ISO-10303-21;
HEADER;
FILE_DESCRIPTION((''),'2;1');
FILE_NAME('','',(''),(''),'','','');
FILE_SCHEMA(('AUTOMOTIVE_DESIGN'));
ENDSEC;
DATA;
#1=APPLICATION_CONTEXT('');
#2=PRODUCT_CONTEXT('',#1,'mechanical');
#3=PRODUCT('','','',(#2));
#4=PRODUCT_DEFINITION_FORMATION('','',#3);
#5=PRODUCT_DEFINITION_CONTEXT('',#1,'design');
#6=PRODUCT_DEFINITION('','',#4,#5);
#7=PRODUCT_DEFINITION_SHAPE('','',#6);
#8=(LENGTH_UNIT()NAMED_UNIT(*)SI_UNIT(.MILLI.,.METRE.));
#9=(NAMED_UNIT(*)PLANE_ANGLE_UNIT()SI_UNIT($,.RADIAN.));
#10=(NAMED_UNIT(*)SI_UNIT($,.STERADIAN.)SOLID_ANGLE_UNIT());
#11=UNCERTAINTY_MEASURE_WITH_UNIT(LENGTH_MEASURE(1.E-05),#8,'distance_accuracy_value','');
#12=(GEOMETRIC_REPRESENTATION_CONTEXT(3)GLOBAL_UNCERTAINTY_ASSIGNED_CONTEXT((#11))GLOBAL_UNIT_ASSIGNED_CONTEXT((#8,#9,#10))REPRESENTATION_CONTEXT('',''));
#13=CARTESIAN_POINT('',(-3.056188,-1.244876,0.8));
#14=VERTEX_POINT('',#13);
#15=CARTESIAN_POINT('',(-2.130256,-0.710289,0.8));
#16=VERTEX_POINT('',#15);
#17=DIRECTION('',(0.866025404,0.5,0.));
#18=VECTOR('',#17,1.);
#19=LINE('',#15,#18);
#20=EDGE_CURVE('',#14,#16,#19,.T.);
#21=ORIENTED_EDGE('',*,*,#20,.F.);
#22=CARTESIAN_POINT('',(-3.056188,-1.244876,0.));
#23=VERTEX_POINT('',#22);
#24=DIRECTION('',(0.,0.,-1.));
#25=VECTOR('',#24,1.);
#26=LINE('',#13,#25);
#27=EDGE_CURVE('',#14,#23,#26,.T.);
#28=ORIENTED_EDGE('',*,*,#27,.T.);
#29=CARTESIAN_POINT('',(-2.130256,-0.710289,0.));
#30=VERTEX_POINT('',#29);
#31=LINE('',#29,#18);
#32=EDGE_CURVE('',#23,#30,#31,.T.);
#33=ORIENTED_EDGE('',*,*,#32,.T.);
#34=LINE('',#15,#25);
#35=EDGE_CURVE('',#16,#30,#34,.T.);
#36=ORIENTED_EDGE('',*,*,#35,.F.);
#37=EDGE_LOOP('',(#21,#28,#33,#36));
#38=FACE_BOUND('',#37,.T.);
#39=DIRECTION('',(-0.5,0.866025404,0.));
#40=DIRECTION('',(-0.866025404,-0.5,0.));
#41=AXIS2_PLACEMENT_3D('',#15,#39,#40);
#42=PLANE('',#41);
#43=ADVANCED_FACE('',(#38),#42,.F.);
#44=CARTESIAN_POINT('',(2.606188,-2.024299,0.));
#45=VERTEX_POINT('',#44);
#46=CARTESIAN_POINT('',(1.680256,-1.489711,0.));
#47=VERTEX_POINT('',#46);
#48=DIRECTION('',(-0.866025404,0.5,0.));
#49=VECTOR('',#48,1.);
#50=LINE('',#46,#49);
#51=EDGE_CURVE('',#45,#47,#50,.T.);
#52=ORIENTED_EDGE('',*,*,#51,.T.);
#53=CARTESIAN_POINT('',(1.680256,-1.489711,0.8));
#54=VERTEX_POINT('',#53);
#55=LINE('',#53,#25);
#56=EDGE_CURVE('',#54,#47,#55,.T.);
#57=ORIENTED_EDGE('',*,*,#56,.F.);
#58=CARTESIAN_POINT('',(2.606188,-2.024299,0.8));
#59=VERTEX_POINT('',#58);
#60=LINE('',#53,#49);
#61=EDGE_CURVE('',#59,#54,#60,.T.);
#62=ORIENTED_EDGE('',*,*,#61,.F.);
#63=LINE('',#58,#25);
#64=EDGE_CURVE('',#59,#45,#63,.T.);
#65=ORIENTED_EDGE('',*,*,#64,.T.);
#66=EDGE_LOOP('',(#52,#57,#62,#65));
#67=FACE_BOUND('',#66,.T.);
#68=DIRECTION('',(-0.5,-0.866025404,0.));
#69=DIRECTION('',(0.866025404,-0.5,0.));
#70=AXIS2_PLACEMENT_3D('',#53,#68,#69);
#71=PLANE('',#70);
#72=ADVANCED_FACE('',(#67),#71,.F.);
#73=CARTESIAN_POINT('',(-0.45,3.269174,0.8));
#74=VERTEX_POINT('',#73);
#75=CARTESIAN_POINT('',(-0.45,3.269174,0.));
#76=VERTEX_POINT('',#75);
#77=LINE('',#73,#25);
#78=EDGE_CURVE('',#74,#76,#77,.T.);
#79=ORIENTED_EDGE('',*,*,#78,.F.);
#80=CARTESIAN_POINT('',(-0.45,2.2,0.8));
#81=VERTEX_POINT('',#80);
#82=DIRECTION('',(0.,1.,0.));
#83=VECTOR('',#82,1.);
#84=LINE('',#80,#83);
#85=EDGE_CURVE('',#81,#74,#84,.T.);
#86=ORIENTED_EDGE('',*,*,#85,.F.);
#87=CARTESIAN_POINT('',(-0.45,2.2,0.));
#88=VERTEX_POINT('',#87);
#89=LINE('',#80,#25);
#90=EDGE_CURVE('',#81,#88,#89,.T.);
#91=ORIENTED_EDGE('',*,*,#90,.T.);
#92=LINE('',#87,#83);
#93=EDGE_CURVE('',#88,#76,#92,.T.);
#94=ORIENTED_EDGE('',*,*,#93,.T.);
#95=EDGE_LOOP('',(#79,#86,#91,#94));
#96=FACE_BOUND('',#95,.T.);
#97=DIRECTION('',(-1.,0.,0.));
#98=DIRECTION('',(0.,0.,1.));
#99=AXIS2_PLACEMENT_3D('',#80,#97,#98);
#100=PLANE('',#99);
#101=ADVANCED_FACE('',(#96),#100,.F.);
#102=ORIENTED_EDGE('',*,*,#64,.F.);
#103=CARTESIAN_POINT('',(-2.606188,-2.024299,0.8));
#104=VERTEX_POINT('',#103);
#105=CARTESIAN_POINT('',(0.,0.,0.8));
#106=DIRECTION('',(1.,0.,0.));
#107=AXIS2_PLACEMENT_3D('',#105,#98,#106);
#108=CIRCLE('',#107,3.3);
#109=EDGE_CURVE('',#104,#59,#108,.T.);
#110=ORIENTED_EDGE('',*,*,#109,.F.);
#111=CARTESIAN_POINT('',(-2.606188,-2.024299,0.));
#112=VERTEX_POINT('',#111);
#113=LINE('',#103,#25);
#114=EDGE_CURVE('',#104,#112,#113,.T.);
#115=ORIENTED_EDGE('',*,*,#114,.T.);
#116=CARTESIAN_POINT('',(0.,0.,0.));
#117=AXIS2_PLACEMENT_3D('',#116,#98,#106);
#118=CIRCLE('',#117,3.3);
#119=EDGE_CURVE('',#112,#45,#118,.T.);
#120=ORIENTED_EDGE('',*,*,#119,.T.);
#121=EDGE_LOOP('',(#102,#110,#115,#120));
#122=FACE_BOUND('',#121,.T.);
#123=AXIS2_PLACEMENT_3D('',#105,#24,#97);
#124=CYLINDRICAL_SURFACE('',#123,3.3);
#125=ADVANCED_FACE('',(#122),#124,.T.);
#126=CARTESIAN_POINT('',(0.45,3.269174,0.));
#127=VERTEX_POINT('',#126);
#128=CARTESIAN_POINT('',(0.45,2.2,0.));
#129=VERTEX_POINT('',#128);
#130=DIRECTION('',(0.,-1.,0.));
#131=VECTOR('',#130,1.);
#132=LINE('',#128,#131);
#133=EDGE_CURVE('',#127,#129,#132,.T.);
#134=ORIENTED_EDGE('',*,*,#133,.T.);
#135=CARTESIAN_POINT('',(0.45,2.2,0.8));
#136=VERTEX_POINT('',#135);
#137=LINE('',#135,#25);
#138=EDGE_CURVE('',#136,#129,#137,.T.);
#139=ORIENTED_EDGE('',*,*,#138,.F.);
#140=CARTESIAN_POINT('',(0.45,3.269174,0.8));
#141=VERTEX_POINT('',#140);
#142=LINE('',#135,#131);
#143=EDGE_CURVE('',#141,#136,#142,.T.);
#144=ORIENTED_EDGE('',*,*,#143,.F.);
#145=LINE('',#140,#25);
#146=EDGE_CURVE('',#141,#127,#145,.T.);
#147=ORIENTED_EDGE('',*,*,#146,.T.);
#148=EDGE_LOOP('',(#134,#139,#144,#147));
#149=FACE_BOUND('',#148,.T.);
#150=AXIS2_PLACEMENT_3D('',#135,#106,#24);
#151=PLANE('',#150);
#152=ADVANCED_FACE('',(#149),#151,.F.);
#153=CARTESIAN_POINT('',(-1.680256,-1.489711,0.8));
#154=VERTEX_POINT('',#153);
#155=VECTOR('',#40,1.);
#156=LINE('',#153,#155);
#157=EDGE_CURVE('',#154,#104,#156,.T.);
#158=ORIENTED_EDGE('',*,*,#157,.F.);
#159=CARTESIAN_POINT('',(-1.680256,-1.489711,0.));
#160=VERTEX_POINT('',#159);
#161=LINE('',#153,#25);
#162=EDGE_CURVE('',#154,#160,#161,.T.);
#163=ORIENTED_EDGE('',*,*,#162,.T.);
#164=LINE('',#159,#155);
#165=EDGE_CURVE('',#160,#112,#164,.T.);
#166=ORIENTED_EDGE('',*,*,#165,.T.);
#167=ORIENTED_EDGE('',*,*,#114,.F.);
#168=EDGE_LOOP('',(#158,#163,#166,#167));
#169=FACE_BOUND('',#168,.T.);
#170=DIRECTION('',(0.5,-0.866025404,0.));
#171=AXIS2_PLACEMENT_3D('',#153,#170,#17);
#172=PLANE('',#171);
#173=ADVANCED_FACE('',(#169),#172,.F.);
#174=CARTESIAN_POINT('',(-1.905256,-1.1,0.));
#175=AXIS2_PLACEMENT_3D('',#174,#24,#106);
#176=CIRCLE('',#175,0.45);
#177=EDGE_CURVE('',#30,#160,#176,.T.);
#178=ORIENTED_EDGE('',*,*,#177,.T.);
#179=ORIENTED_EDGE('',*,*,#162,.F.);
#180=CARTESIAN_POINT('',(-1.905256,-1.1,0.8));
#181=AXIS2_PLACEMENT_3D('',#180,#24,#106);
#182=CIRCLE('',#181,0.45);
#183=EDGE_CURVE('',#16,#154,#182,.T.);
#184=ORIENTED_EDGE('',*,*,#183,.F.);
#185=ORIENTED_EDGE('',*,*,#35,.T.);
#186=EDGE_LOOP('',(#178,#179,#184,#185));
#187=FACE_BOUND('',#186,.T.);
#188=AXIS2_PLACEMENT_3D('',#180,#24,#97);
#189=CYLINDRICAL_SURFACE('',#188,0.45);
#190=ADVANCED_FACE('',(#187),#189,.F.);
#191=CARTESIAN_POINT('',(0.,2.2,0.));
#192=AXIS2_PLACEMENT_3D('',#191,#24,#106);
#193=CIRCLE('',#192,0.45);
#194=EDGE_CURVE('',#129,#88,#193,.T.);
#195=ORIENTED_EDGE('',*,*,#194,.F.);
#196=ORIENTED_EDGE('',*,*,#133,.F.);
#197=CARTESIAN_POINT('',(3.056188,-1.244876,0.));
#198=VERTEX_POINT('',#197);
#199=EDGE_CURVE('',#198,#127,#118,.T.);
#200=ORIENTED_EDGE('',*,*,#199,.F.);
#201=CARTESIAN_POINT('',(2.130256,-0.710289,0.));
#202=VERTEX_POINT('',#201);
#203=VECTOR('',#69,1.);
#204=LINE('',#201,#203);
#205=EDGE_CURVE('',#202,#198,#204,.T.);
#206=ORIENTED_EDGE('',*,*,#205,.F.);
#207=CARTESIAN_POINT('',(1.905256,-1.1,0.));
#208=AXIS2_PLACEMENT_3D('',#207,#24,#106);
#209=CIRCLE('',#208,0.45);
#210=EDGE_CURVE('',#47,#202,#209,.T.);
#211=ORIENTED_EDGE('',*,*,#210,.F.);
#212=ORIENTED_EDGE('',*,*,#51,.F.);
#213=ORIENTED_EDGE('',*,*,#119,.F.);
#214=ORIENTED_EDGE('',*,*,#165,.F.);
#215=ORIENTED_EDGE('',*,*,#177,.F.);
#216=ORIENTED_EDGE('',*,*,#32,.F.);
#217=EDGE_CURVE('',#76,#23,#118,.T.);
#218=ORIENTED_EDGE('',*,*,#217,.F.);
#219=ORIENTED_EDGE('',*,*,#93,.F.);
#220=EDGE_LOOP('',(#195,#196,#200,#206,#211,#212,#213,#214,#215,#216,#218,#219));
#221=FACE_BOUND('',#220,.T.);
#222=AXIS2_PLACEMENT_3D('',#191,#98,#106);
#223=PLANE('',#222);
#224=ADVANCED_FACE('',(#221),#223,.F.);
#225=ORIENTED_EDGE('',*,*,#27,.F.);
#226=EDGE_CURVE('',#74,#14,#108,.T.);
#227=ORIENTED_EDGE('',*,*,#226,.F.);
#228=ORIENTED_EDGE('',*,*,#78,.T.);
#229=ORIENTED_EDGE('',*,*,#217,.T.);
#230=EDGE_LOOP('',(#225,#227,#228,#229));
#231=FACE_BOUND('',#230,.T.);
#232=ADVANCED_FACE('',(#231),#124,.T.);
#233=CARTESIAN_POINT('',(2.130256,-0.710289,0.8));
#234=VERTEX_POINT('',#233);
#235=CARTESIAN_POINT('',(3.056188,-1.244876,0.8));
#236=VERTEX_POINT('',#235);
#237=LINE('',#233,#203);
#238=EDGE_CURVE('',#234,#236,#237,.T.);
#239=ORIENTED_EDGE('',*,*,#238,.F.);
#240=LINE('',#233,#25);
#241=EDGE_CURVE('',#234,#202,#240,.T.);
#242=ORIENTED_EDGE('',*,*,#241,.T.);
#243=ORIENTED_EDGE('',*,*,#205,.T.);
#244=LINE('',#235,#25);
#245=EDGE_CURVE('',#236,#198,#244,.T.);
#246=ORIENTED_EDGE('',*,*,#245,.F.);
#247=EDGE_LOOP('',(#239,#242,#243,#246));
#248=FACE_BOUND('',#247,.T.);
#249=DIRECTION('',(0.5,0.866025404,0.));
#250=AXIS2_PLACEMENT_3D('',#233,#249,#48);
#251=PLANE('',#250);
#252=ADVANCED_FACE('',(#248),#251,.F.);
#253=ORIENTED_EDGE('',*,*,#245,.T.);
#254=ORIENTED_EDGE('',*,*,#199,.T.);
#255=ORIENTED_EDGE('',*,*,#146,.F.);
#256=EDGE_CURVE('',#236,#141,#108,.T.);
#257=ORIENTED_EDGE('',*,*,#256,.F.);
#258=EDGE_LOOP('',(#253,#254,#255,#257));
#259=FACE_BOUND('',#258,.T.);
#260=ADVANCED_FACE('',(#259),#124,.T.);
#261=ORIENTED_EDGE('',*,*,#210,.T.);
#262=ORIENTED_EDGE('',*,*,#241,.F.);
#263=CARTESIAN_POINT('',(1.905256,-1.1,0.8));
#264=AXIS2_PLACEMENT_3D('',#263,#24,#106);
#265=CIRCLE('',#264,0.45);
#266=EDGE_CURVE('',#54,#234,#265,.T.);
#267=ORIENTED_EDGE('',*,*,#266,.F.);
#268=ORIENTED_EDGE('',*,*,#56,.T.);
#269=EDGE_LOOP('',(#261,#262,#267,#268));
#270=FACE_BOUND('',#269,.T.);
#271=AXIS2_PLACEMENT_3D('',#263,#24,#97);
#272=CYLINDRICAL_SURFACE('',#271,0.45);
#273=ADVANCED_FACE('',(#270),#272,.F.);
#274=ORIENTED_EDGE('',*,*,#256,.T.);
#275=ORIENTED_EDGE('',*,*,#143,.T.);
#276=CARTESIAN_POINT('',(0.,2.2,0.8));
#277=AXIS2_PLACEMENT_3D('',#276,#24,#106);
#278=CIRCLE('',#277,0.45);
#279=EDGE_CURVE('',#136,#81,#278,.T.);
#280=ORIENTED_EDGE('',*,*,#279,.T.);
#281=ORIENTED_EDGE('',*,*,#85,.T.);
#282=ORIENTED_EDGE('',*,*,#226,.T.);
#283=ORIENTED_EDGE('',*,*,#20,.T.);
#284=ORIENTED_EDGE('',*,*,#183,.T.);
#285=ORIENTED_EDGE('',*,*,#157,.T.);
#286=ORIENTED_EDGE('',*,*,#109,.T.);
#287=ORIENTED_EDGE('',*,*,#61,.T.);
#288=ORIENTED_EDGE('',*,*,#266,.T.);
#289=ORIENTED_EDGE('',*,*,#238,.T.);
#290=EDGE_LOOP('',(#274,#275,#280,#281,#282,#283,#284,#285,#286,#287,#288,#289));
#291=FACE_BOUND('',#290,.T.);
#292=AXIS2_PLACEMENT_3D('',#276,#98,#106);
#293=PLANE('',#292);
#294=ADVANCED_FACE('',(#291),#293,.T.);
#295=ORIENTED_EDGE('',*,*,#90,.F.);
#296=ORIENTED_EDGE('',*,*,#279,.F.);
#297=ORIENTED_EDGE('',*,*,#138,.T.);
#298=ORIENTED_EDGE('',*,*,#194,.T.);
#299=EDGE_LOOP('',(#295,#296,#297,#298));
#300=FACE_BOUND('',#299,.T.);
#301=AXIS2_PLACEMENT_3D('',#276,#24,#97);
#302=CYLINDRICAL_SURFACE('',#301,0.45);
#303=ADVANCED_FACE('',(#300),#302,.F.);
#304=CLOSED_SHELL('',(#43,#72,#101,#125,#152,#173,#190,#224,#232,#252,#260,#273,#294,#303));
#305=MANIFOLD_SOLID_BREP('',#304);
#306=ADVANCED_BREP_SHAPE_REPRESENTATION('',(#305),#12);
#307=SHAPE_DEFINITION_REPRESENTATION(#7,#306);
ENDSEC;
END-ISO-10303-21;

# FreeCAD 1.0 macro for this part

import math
import FreeCAD as App
import Part
import Sketcher
from FreeCAD import Vector
Q = App.Units.Quantity

doc = App.newDocument("Part")
body = doc.addObject("PartDesign::Body", "Body")

# Sketch on XY plane
sketch1 = body.newObject("Sketcher::SketchObject", "Sketch")
sketch1.AttachmentSupport = (doc.getObject("XY_Plane"), [""])
sketch1.MapMode = "FlatFace"
sketch1.addGeometry([
    Part.LineSegment(Vector(-0.45, 2.2, 0), Vector(-0.45, 3.269174, 0)),  # 0
    Part.ArcOfCircle(Part.Circle(Vector(0, 0, 0), Vector(0, 0, 1), 3.3), math.radians(97.83748), math.radians(202.16252)),  # 1
    Part.LineSegment(Vector(-3.056188, -1.244876, 0), Vector(-2.130256, -0.710289, 0)),  # 2
    Part.ArcOfCircle(Part.Circle(Vector(-1.905256, -1.1, 0), Vector(0, 0, 1), 0.45), math.radians(-60), math.radians(120)),  # 3
    Part.LineSegment(Vector(-1.680256, -1.489711, 0), Vector(-2.606188, -2.024299, 0)),  # 4
    Part.ArcOfCircle(Part.Circle(Vector(0, 0, 0), Vector(0, 0, 1), 3.3), math.radians(-142.16252), math.radians(-37.83748)),  # 5
    Part.LineSegment(Vector(2.606188, -2.024299, 0), Vector(1.680256, -1.489711, 0)),  # 6
    Part.ArcOfCircle(Part.Circle(Vector(1.905256, -1.1, 0), Vector(0, 0, 1), 0.45), math.radians(60), math.radians(240)),  # 7
    Part.LineSegment(Vector(2.130256, -0.710289, 0), Vector(3.056188, -1.244876, 0)),  # 8
    Part.ArcOfCircle(Part.Circle(Vector(0, 0, 0), Vector(0, 0, 1), 3.3), math.radians(-22.16252), math.radians(82.16252)),  # 9
    Part.LineSegment(Vector(0.45, 3.269174, 0), Vector(0.45, 2.2, 0)),  # 10
    Part.ArcOfCircle(Part.Circle(Vector(0, 2.2, 0), Vector(0, 0, 1), 0.45), math.radians(180), math.radians(360)),  # 11
], False)
sketch1.addConstraint([
    Sketcher.Constraint("Coincident", 0, 2, 1, 1),
    Sketcher.Constraint("Coincident", 1, 2, 2, 1),
    Sketcher.Constraint("Tangent", 2, 2, 3, 2),
    Sketcher.Constraint("Tangent", 3, 1, 4, 1),
    Sketcher.Constraint("Coincident", 4, 2, 5, 1),
    Sketcher.Constraint("Coincident", 5, 2, 6, 1),
    Sketcher.Constraint("Tangent", 6, 2, 7, 2),
    Sketcher.Constraint("Tangent", 7, 1, 8, 1),
    Sketcher.Constraint("Coincident", 8, 2, 9, 1),
    Sketcher.Constraint("Coincident", 9, 2, 10, 1),
    Sketcher.Constraint("Tangent", 10, 2, 11, 2),
    Sketcher.Constraint("Tangent", 11, 1, 0, 1),
    Sketcher.Constraint("Vertical", 0),
    Sketcher.Constraint("Vertical", 10),
    Sketcher.Constraint("Coincident", 1, 3, -1, 1),
    Sketcher.Constraint("Coincident", 5, 3, -1, 1),
    Sketcher.Constraint("Coincident", 9, 3, -1, 1),
    Sketcher.Constraint("Equal", 1, 5),
    Sketcher.Constraint("Equal", 3, 7),
    Sketcher.Constraint("Equal", 5, 9),
    Sketcher.Constraint("Equal", 7, 11),
    Sketcher.Constraint("Symmetric", 3, 3, 7, 3, -2),
    Sketcher.Constraint("PointOnObject", 11, 3, -2),
    Sketcher.Constraint("Parallel", 2, 4),
    Sketcher.Constraint("Parallel", 6, 8),
    Sketcher.Constraint("Horizontal", 4, 2, 5, 2),
    Sketcher.Constraint("Equal", 2, 4),
    Sketcher.Constraint("Radius", 1, Q("3.3 mm")),
    Sketcher.Constraint("Angle", 2, Q("30 deg")),
    Sketcher.Constraint("Radius", 3, Q("0.45 mm")),
    Sketcher.Constraint("DistanceY", 3, 3, -1, 1, Q("1.1 mm")),
    Sketcher.Constraint("DistanceY", -1, 1, 11, 3, Q("2.2 mm")),
])
pad1 = body.newObject("PartDesign::Pad", "Pad")
pad1.Profile = sketch1
pad1.Length = 0.8

doc.recompute()
